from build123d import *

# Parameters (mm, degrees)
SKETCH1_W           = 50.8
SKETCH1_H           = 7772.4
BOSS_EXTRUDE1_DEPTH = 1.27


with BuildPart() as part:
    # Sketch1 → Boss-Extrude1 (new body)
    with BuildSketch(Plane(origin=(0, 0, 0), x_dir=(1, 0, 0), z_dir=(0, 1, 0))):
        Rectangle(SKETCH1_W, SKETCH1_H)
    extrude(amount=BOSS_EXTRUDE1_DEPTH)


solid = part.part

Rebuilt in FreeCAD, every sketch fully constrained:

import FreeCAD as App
import Part
import Sketcher
from FreeCAD import Vector
Q = App.Units.Quantity

doc = App.newDocument("Part")
body = doc.addObject("PartDesign::Body", "Body")

# Sketch on XZ plane
sketch1 = doc.addObject("Sketcher::SketchObject", "Sketch")
body.addObject(sketch1)
sketch1.AttachmentSupport = (doc.XZ_Plane, [""])
sketch1.MapMode = "FlatFace"
sketch1.addGeometry(Part.LineSegment(Vector(-25, -3886, 0), Vector(-25, 3886, 0)), False)
sketch1.addGeometry(Part.LineSegment(Vector(-25, 3886, 0), Vector(25, 3886, 0)), False)
sketch1.addGeometry(Part.LineSegment(Vector(25, 3886, 0), Vector(25, -3886, 0)), False)
sketch1.addGeometry(Part.LineSegment(Vector(25, -3886, 0), Vector(-25, -3886, 0)), False)
sketch1.addConstraint(Sketcher.Constraint("Coincident", 0, 2, 1, 1))
sketch1.addConstraint(Sketcher.Constraint("Coincident", 1, 2, 2, 1))
sketch1.addConstraint(Sketcher.Constraint("Coincident", 2, 2, 3, 1))
sketch1.addConstraint(Sketcher.Constraint("Coincident", 3, 2, 0, 1))
sketch1.addConstraint(Sketcher.Constraint("Vertical", 0))
sketch1.addConstraint(Sketcher.Constraint("Horizontal", 1))
sketch1.addConstraint(Sketcher.Constraint("Vertical", 2))
sketch1.addConstraint(Sketcher.Constraint("Horizontal", 3))
sketch1.addConstraint(Sketcher.Constraint("Symmetric", 0, 2, 2, 2, -1, 1))
sketch1.addConstraint(Sketcher.Constraint("DistanceX", 1, 1, 1, 2, Q("2 in")))
sketch1.addConstraint(Sketcher.Constraint("DistanceY", 0, 1, 0, 2, Q("306 in")))
pad1 = doc.addObject("PartDesign::Pad", "Pad")
body.addObject(pad1)
pad1.Profile = sketch1
pad1.Length = Q("0.05 in")
pad1.Reversed = True

doc.recompute()
